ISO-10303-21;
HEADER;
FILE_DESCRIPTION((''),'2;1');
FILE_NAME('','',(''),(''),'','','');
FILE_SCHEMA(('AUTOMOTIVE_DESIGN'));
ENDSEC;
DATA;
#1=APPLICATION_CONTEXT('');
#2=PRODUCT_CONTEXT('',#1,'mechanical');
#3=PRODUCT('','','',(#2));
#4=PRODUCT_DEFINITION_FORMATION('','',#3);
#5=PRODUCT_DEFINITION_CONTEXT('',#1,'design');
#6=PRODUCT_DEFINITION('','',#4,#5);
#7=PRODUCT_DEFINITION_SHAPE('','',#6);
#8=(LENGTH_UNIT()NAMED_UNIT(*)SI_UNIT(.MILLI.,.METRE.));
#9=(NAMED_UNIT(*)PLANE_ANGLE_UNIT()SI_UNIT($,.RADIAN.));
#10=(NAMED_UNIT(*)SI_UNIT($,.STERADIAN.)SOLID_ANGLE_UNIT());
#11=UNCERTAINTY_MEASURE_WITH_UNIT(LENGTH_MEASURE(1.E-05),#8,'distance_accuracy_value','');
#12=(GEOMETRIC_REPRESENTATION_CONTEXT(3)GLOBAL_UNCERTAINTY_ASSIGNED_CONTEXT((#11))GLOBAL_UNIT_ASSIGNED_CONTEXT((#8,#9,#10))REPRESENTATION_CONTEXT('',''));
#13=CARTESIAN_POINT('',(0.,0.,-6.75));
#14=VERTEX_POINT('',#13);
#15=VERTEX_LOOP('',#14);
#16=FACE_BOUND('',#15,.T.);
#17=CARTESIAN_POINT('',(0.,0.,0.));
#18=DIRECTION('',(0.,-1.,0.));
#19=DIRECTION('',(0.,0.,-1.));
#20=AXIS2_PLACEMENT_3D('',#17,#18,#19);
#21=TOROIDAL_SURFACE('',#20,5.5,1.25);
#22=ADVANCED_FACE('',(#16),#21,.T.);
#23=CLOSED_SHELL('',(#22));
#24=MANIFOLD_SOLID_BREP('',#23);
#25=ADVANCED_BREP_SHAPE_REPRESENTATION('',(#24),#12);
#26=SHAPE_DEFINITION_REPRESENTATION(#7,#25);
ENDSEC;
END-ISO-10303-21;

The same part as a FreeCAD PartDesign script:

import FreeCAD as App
import Part
import Sketcher

V = App.Vector

doc = App.newDocument("Part")
body = doc.addObject("PartDesign::Body", "Body")

# Sketch on XY plane
sketch1 = doc.addObject("Sketcher::SketchObject", "Sketch")
body.addObject(sketch1)
sketch1.AttachmentSupport = (doc.XY_Plane, [""])
sketch1.MapMode = "FlatFace"
sketch1.addGeometry(Part.Circle(V(-5.5, 0, 0), V(0, 0, 1), 1.2), False)
sketch1.addConstraint([
    Sketcher.Constraint("PointOnObject", 0, 3, -1),
    Sketcher.Constraint("Diameter", 0, 2.5),
    Sketcher.Constraint("DistanceX", 0, 3, -1, 1, 5.5),
])
revolution = doc.addObject("PartDesign::Revolution", "Revolution")
body.addObject(revolution)
revolution.Profile = sketch1
revolution.ReferenceAxis = (sketch1, ["V_Axis"])
revolution.Angle = 360

doc.recompute()
